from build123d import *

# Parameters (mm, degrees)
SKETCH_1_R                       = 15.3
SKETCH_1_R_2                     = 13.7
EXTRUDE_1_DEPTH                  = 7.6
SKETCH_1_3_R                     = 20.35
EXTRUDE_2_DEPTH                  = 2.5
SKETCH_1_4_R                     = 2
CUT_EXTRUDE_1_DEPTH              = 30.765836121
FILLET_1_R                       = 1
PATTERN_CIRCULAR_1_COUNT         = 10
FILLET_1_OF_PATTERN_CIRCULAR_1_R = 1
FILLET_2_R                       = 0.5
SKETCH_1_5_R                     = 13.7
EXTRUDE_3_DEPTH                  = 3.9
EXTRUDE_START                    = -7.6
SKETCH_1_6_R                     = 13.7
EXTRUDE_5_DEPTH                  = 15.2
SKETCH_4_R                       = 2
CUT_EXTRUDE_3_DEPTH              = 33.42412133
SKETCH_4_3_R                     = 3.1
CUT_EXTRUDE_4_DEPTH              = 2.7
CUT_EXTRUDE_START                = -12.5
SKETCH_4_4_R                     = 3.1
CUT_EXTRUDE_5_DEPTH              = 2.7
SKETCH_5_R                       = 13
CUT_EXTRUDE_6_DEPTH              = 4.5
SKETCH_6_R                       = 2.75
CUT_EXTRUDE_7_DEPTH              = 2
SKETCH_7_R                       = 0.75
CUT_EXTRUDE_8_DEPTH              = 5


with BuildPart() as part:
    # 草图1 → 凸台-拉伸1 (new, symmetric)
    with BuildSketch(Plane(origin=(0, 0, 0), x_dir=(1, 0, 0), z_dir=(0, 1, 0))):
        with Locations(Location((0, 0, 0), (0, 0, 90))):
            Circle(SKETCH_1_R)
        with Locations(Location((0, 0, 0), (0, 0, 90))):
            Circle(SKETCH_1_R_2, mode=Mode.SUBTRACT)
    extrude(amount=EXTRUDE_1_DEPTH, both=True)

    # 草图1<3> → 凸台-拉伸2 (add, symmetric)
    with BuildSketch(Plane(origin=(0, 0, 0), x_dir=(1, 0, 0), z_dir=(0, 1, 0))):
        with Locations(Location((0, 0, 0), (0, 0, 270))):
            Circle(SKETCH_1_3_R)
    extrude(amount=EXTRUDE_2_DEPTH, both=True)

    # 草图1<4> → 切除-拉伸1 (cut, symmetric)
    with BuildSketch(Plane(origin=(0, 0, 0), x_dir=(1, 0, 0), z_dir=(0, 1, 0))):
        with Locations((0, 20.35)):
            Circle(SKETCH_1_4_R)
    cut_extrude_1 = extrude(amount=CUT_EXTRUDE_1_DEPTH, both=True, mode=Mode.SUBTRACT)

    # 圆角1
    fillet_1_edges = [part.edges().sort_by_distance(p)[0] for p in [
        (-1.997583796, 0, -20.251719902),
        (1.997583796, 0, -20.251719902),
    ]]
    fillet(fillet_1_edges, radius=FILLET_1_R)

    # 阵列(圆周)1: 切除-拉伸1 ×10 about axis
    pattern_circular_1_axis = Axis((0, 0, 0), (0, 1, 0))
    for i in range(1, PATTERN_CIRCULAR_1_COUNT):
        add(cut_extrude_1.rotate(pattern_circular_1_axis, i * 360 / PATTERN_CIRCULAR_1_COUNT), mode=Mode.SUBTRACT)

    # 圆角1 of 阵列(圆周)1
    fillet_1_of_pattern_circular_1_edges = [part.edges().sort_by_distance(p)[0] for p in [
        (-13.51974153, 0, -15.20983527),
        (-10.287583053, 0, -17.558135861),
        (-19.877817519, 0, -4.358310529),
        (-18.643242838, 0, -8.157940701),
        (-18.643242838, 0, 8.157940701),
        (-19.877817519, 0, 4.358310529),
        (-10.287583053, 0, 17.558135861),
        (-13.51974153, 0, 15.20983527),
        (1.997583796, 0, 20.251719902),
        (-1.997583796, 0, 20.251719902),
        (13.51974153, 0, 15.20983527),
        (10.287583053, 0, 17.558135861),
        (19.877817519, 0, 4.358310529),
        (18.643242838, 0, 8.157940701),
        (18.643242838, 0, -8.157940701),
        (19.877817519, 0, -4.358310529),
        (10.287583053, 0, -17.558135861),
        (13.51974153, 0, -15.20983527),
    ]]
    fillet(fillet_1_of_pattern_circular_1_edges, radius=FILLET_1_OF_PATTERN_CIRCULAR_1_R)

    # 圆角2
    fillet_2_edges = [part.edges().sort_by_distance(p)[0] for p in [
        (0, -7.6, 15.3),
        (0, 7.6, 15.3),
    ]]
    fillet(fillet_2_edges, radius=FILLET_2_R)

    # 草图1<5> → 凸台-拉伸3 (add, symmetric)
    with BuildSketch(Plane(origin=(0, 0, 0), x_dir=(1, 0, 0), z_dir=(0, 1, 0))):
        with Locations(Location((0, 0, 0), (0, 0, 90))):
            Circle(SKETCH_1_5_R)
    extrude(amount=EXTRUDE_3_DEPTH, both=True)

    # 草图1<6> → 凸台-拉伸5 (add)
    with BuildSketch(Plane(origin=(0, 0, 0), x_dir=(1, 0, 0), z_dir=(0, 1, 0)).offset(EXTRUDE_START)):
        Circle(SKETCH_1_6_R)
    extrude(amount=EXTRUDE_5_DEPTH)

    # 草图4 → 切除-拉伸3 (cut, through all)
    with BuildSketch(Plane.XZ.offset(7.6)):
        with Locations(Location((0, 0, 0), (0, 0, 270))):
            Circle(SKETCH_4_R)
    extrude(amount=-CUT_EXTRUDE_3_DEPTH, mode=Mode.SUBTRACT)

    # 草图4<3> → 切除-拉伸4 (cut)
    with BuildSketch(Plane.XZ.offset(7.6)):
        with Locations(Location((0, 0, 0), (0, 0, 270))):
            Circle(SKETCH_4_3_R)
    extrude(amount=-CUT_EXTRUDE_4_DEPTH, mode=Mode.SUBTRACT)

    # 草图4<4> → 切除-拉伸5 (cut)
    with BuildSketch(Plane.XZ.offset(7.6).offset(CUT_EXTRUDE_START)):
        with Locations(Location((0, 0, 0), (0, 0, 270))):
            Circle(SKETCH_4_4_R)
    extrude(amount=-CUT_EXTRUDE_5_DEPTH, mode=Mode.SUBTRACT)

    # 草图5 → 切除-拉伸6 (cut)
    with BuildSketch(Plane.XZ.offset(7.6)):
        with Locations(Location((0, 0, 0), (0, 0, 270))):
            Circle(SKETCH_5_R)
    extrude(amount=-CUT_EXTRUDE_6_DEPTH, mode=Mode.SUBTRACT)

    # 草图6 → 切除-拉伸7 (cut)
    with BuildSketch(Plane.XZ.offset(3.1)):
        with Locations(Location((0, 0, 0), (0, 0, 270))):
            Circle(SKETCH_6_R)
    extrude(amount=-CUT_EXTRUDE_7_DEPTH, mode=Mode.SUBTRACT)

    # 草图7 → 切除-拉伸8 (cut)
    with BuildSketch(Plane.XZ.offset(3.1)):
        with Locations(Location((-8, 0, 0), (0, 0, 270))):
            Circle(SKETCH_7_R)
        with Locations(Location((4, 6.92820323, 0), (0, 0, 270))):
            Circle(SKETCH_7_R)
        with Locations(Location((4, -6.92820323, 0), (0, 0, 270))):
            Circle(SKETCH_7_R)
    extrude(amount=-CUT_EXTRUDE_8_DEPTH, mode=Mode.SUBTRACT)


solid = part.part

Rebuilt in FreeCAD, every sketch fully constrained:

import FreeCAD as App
import Part
import Sketcher

V = App.Vector
Q = App.Units.Quantity


def edges_at(feature, points):
    """Names of the edges that pass closest to the given points."""
    edges = feature.Shape.Edges
    near = lambda p: min(range(len(edges)), key=lambda i: edges[i].distToShape(Part.Vertex(*p))[0])
    return sorted({f"Edge{near(p) + 1}" for p in points})

doc = App.newDocument("Part")
body = doc.addObject("PartDesign::Body", "Body")

# Sketch on XZ plane
sketch1 = body.newObject("Sketcher::SketchObject", "Sketch")
sketch1.AttachmentSupport = (doc.getObject("XZ_Plane"), [""])
sketch1.MapMode = "FlatFace"
sketch1.addGeometry(Part.Circle(V(0, 0, 0), V(0, 0, 1), 15.3), False)
sketch1.addGeometry(Part.Circle(V(0, 0, 0), V(0, 0, 1), 13.7), False)
sketch1.addConstraint(Sketcher.Constraint("Coincident", 0, 3, -1, 1))
sketch1.addConstraint(Sketcher.Constraint("Coincident", 1, 3, -1, 1))
sketch1.addConstraint(Sketcher.Constraint("Diameter", 0, Q("30.6 mm")))
sketch1.addConstraint(Sketcher.Constraint("Diameter", 1, Q("27.4 mm")))
pad1 = body.newObject("PartDesign::Pad", "Pad")
pad1.Profile = sketch1
pad1.Length = 15.2
pad1.Midplane = True

# Sketch on XZ plane
sketch2 = body.newObject("Sketcher::SketchObject", "Sketch001")
sketch2.AttachmentSupport = (doc.getObject("XZ_Plane"), [""])
sketch2.MapMode = "FlatFace"
sketch2.addGeometry(Part.Circle(V(0, 0, 0), V(0, 0, 1), 20.35), False)
sketch2.addConstraint(Sketcher.Constraint("Coincident", 0, 3, -1, 1))
sketch2.addConstraint(Sketcher.Constraint("Diameter", 0, Q("40.7 mm")))
pad2 = body.newObject("PartDesign::Pad", "Pad001")
pad2.Profile = sketch2
pad2.Length = 5
pad2.Midplane = True

# Sketch on XZ plane
sketch3 = body.newObject("Sketcher::SketchObject", "Sketch002")
sketch3.AttachmentSupport = (doc.getObject("XZ_Plane"), [""])
sketch3.MapMode = "FlatFace"
sketch3.addGeometry(Part.Circle(V(0, -20.35, 0), V(0, 0, 1), 2), False)
sketch3.addConstraint(Sketcher.Constraint("PointOnObject", 0, 3, -2))
sketch3.addConstraint(Sketcher.Constraint("Diameter", 0, Q("4 mm")))
sketch3.addConstraint(Sketcher.Constraint("DistanceY", 0, 3, -1, 1, Q("20.35 mm")))
pocket1 = body.newObject("PartDesign::Pocket", "Pocket")
pocket1.Profile = sketch3
pocket1.Length = 61.531672
pocket1.Midplane = True
doc.recompute()

fillet = body.newObject("PartDesign::Fillet", "Fillet")
fillet.Base = (pocket1, edges_at(pocket1, [(-1.998, 0, -20.252), (1.998, 0, -20.252)]))
fillet.Radius = 1
doc.recompute()

polarpattern = body.newObject("PartDesign::PolarPattern", "PolarPattern")
polarpattern.Originals = [pocket1]
polarpattern.Axis = (doc.getObject("Y_Axis"), [""])
polarpattern.Angle = 360
polarpattern.Occurrences = 10
body.Tip = polarpattern
doc.recompute()

fillet2 = body.newObject("PartDesign::Fillet", "Fillet001")
fillet2.Base = (polarpattern, edges_at(polarpattern, [
    (-13.52, 0, -15.21),
    (-10.288, 0, -17.558),
    (-19.878, 0, -4.358),
    (-18.643, 0, -8.158),
    (-18.643, 0, 8.158),
    (-19.878, 0, 4.358),
    (-10.288, 0, 17.558),
    (-13.52, 0, 15.21),
    (1.998, 0, 20.252),
    (-1.998, 0, 20.252),
    (13.52, 0, 15.21),
    (10.288, 0, 17.558),
    (19.878, 0, 4.358),
    (18.643, 0, 8.158),
    (18.643, 0, -8.158),
    (19.878, 0, -4.358),
    (10.288, 0, -17.558),
    (13.52, 0, -15.21),
]))
fillet2.Radius = 1
doc.recompute()

fillet3 = body.newObject("PartDesign::Fillet", "Fillet002")
fillet3.Base = (fillet2, edges_at(fillet2, [(0, -7.6, 15.3), (0, 7.6, 15.3)]))
fillet3.Radius = 0.5

# Sketch on XZ plane
sketch4 = body.newObject("Sketcher::SketchObject", "Sketch003")
sketch4.AttachmentSupport = (doc.getObject("XZ_Plane"), [""])
sketch4.MapMode = "FlatFace"
sketch4.addGeometry(Part.Circle(V(0, 0, 0), V(0, 0, 1), 13.7), False)
sketch4.addConstraint(Sketcher.Constraint("Coincident", 0, 3, -1, 1))
sketch4.addConstraint(Sketcher.Constraint("Diameter", 0, Q("27.4 mm")))
pad3 = body.newObject("PartDesign::Pad", "Pad002")
pad3.Profile = sketch4
pad3.Length = 7.8
pad3.Midplane = True

# Sketch on XZ plane
sketch5 = body.newObject("Sketcher::SketchObject", "Sketch004")
sketch5.AttachmentSupport = (doc.getObject("XZ_Plane"), [""])
sketch5.MapMode = "FlatFace"
sketch5.AttachmentOffset = App.Placement(V(0, 0, 7.6), App.Rotation())
sketch5.addGeometry(Part.Circle(V(0, 0, 0), V(0, 0, 1), 13.7), False)
sketch5.addConstraint(Sketcher.Constraint("Coincident", 0, 3, -1, 1))
sketch5.addConstraint(Sketcher.Constraint("Diameter", 0, Q("27.4 mm")))
pad4 = body.newObject("PartDesign::Pad", "Pad003")
pad4.Profile = sketch5
pad4.Length = 15.2
pad4.Reversed = True

# Sketch on XZ plane
sketch6 = body.newObject("Sketcher::SketchObject", "Sketch005")
sketch6.AttachmentSupport = (doc.getObject("XZ_Plane"), [""])
sketch6.MapMode = "FlatFace"
sketch6.AttachmentOffset = App.Placement(V(0, 0, 7.6), App.Rotation())
sketch6.addGeometry(Part.Circle(V(0, 0, 0), V(0, 0, 1), 2), False)
sketch6.addConstraint(Sketcher.Constraint("Coincident", 0, 3, -1, 1))
sketch6.addConstraint(Sketcher.Constraint("Diameter", 0, Q("4 mm")))
pocket2 = body.newObject("PartDesign::Pocket", "Pocket001")
pocket2.Profile = sketch6
pocket2.Type = "ThroughAll"

# Sketch on XZ plane
sketch7 = body.newObject("Sketcher::SketchObject", "Sketch006")
sketch7.AttachmentSupport = (doc.getObject("XZ_Plane"), [""])
sketch7.MapMode = "FlatFace"
sketch7.AttachmentOffset = App.Placement(V(0, 0, 7.6), App.Rotation())
sketch7.addGeometry(Part.Circle(V(0, 0, 0), V(0, 0, 1), 3.1), False)
sketch7.addConstraint(Sketcher.Constraint("Coincident", 0, 3, -1, 1))
sketch7.addConstraint(Sketcher.Constraint("Diameter", 0, Q("6.2 mm")))
pocket3 = body.newObject("PartDesign::Pocket", "Pocket002")
pocket3.Profile = sketch7
pocket3.Length = 2.7

# Sketch on XZ plane
sketch8 = body.newObject("Sketcher::SketchObject", "Sketch007")
sketch8.AttachmentSupport = (doc.getObject("XZ_Plane"), [""])
sketch8.MapMode = "FlatFace"
sketch8.AttachmentOffset = App.Placement(V(0, 0, -4.9), App.Rotation())
sketch8.addGeometry(Part.Circle(V(0, 0, 0), V(0, 0, 1), 3.1), False)
sketch8.addConstraint(Sketcher.Constraint("Coincident", 0, 3, -1, 1))
sketch8.addConstraint(Sketcher.Constraint("Diameter", 0, Q("6.2 mm")))
pocket4 = body.newObject("PartDesign::Pocket", "Pocket003")
pocket4.Profile = sketch8
pocket4.Length = 2.7

# Sketch on XZ plane
sketch9 = body.newObject("Sketcher::SketchObject", "Sketch008")
sketch9.AttachmentSupport = (doc.getObject("XZ_Plane"), [""])
sketch9.MapMode = "FlatFace"
sketch9.AttachmentOffset = App.Placement(V(0, 0, 7.6), App.Rotation())
sketch9.addGeometry(Part.Circle(V(0, 0, 0), V(0, 0, 1), 13), False)
sketch9.addConstraint(Sketcher.Constraint("Coincident", 0, 3, -1, 1))
sketch9.addConstraint(Sketcher.Constraint("Diameter", 0, Q("26 mm")))
pocket5 = body.newObject("PartDesign::Pocket", "Pocket004")
pocket5.Profile = sketch9
pocket5.Length = 4.5

# Sketch on XZ plane
sketch10 = body.newObject("Sketcher::SketchObject", "Sketch009")
sketch10.AttachmentSupport = (doc.getObject("XZ_Plane"), [""])
sketch10.MapMode = "FlatFace"
sketch10.AttachmentOffset = App.Placement(V(0, 0, 3.1), App.Rotation())
sketch10.addGeometry(Part.Circle(V(0, 0, 0), V(0, 0, 1), 2.75), False)
sketch10.addConstraint(Sketcher.Constraint("Coincident", 0, 3, -1, 1))
sketch10.addConstraint(Sketcher.Constraint("Diameter", 0, Q("5.5 mm")))
pocket6 = body.newObject("PartDesign::Pocket", "Pocket005")
pocket6.Profile = sketch10
pocket6.Length = 2

# Sketch on XZ plane
sketch11 = body.newObject("Sketcher::SketchObject", "Sketch010")
sketch11.AttachmentSupport = (doc.getObject("XZ_Plane"), [""])
sketch11.MapMode = "FlatFace"
sketch11.AttachmentOffset = App.Placement(V(0, 0, 3.1), App.Rotation())
sketch11.addGeometry(Part.Circle(V(-8, 0, 0), V(0, 0, 1), 0.75), False)
sketch11.addGeometry(Part.Circle(V(4, 6.928203, 0), V(0, 0, 1), 0.75), False)
sketch11.addGeometry(Part.Circle(V(4, -6.928203, 0), V(0, 0, 1), 0.75), False)
sketch11.addConstraint(Sketcher.Constraint("Equal", 0, 1))
sketch11.addConstraint(Sketcher.Constraint("Equal", 1, 2))
sketch11.addConstraint(Sketcher.Constraint("Symmetric", 1, 3, 2, 3, -1))
sketch11.addConstraint(Sketcher.Constraint("PointOnObject", 0, 3, -1))
sketch11.addConstraint(Sketcher.Constraint("Diameter", 0, Q("1.5 mm")))
sketch11.addConstraint(Sketcher.Constraint("DistanceX", 0, 3, -1, 1, Q("8 mm")))
sketch11.addConstraint(Sketcher.Constraint("DistanceX", -1, 1, 1, 3, Q("4 mm")))
sketch11.addConstraint(Sketcher.Constraint("DistanceY", -1, 1, 1, 3, Q("6.928203 mm")))
pocket7 = body.newObject("PartDesign::Pocket", "Pocket006")
pocket7.Profile = sketch11
pocket7.Length = 5

doc.recompute()
